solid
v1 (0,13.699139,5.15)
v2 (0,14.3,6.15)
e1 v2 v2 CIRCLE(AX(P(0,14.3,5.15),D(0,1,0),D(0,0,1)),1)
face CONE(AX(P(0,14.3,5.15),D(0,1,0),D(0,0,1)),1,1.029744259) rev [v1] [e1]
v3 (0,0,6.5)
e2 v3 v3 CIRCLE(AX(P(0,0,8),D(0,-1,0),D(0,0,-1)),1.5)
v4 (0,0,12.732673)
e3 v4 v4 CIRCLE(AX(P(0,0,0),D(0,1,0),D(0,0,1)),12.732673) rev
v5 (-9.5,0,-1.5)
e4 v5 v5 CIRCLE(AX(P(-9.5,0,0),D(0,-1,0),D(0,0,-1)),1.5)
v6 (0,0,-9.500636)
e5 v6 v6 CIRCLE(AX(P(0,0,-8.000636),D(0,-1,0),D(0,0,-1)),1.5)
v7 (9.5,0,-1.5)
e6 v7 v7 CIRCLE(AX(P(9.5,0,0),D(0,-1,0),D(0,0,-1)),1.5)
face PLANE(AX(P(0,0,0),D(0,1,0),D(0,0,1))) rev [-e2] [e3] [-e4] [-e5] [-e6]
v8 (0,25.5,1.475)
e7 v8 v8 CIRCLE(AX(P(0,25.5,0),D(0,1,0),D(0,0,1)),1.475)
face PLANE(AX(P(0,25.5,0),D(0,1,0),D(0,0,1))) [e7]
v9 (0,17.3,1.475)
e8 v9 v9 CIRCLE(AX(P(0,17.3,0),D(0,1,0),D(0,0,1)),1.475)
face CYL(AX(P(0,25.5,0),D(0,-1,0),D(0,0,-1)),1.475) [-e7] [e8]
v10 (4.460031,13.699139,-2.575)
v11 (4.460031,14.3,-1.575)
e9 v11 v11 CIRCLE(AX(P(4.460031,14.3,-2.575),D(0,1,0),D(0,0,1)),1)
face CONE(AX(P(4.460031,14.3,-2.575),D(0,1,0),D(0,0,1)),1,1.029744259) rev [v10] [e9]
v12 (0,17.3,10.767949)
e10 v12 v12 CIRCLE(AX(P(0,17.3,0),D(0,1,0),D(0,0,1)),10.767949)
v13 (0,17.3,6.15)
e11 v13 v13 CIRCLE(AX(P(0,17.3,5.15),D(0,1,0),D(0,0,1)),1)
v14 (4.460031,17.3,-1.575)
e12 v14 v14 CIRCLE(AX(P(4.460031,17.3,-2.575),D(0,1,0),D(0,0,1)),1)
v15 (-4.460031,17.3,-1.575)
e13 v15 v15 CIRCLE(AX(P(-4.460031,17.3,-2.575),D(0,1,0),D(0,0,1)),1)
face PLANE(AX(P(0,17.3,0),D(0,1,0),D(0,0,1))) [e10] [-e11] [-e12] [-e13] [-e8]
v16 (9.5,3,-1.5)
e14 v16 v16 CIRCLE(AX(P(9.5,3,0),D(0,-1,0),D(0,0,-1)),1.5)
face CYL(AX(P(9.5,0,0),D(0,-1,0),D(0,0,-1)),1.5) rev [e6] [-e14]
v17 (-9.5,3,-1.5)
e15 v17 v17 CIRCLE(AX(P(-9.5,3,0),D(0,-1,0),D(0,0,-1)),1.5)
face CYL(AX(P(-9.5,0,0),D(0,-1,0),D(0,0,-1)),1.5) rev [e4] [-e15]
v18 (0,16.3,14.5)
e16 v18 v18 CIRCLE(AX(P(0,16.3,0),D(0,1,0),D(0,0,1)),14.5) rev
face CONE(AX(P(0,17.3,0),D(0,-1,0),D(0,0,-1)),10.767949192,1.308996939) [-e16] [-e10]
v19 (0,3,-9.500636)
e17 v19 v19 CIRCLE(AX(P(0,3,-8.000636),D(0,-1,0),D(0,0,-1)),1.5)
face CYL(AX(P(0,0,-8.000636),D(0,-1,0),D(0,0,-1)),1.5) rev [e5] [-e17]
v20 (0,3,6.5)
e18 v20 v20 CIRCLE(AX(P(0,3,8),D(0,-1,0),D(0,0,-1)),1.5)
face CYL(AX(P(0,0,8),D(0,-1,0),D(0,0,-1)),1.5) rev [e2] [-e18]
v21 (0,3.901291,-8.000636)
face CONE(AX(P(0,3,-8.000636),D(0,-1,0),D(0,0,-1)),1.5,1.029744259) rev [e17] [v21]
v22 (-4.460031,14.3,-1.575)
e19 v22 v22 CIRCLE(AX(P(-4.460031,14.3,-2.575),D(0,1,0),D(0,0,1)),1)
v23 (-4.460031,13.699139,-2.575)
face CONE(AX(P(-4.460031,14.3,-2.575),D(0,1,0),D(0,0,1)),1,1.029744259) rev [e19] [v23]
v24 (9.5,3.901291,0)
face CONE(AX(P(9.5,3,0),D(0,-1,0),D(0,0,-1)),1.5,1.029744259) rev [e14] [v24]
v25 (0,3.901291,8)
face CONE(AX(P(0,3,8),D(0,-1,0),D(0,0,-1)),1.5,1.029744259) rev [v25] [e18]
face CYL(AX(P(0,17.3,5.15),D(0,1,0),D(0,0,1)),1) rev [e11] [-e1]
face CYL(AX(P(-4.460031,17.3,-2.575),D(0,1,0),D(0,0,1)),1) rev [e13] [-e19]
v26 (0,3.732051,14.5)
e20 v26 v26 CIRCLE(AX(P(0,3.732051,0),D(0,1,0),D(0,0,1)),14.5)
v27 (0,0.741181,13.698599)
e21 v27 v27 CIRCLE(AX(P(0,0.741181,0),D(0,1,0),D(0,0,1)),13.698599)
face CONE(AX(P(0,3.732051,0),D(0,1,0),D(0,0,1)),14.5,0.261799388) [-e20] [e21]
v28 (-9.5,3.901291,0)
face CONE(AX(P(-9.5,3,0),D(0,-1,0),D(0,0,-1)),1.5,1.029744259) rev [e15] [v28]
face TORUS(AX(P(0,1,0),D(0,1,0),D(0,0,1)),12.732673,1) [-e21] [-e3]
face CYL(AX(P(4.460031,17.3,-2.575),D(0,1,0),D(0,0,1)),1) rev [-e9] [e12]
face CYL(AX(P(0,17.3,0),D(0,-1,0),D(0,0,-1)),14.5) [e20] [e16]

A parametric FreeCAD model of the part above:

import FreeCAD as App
import Part
import Sketcher
from FreeCAD import Vector
Q = App.Units.Quantity


def edges_at(feature, points):
    """Names of the edges that pass closest to the given points."""
    edges = feature.Shape.Edges
    near = lambda p: min(range(len(edges)), key=lambda i: edges[i].distToShape(Part.Vertex(*p))[0])
    return sorted({f"Edge{near(p) + 1}" for p in points})

doc = App.newDocument("Part")
params = doc.addObject("Spreadsheet::Sheet", "Params")
for row, (alias, value) in enumerate([
    ("sketch1_diameter", "29 mm"),
    ("pad1_length", "17.3 mm"),
    ("sketch2_diameter", "2.95 mm"),
    ("pad2_length", "8.2 mm"),
    ("sketch3_diameter", "3 mm"),
    ("hole_diameter", "3 mm"),
    ("hole_depth", "3 mm"),
    ("chamfer_size", "1 mm"),
    ("chamfer_size2", "3.732051 mm"),
    ("fillet_radius", "1 mm"),
    ("chamfer2_size", "1 mm"),
    ("chamfer2_size2", "3.732051 mm"),
    ("sketch4_diameter", "2 mm"),
    ("hole2_diameter", "2 mm"),
    ("hole2_depth", "3 mm"),
], start=1):
    params.set(f"A{row}", alias)
    params.set(f"B{row}", "=" + value)
    params.setAlias(f"B{row}", alias)

body = doc.addObject("PartDesign::Body", "Body")

# Sketch on XZ plane
sketch1 = body.newObject("Sketcher::SketchObject", "Sketch")
sketch1.AttachmentSupport = (doc.getObject("XZ_Plane"), [""])
sketch1.MapMode = "FlatFace"
sketch1.addGeometry(Part.Circle(Vector(0, 0, 0), Vector(0, 0, 1), 14.5), False)
sketch1.addConstraint([
    Sketcher.Constraint("Coincident", 0, 3, -1, 1),
    Sketcher.Constraint("Diameter", 0, Q("29 mm")),
])
sketch1.setExpression("Constraints[1]", "Params.sketch1_diameter")
pad1 = body.newObject("PartDesign::Pad", "Pad")
pad1.Profile = sketch1
pad1.setExpression("Length", "Params.pad1_length")
pad1.Reversed = True

# Sketch on XZ plane
sketch2 = body.newObject("Sketcher::SketchObject", "Sketch001")
sketch2.AttachmentSupport = (doc.getObject("XZ_Plane"), [""])
sketch2.MapMode = "FlatFace"
sketch2.AttachmentOffset = App.Placement(Vector(0, 0, -17.3), App.Rotation())
sketch2.addGeometry(Part.Circle(Vector(0, 0, 0), Vector(0, 0, 1), 1.475), False)
sketch2.addConstraint([
    Sketcher.Constraint("Coincident", 0, 3, -1, 1),
    Sketcher.Constraint("Diameter", 0, Q("2.95 mm")),
])
sketch2.setExpression("Constraints[1]", "Params.sketch2_diameter")
pad2 = body.newObject("PartDesign::Pad", "Pad001")
pad2.Profile = sketch2
pad2.setExpression("Length", "Params.pad2_length")
pad2.Reversed = True

# Sketch on XZ plane
sketch3 = body.newObject("Sketcher::SketchObject", "Sketch002")
sketch3.AttachmentSupport = (doc.getObject("XZ_Plane"), [""])
sketch3.MapMode = "FlatFace"
sketch3.addGeometry([
    Part.Circle(Vector(0, 8, 0), Vector(0, 0, 1), 1.5),
    Part.Circle(Vector(-9.5, 0, 0), Vector(0, 0, 1), 1.5),
    Part.Circle(Vector(0, -8.000636, 0), Vector(0, 0, 1), 1.5),
    Part.Circle(Vector(9.5, 0, 0), Vector(0, 0, 1), 1.5),
], False)
sketch3.addConstraint([
    Sketcher.Constraint("Equal", 0, 1),
    Sketcher.Constraint("Equal", 1, 2),
    Sketcher.Constraint("Equal", 2, 3),
    Sketcher.Constraint("Symmetric", 1, 3, 3, 3, -1, 1),
    Sketcher.Constraint("PointOnObject", 0, 3, -2),
    Sketcher.Constraint("PointOnObject", 1, 3, -1),
    Sketcher.Constraint("PointOnObject", 2, 3, -2),
    Sketcher.Constraint("Diameter", 0, Q("3 mm")),
    Sketcher.Constraint("DistanceY", -1, 1, 0, 3, Q("8 mm")),
    Sketcher.Constraint("DistanceX", 1, 3, 3, 3, Q("19 mm")),
    Sketcher.Constraint("DistanceY", 2, 3, -1, 1, Q("8.000636 mm")),
])
sketch3.setExpression("Constraints[7]", "Params.sketch3_diameter")
doc.recompute()
hole = body.newObject("PartDesign::Hole", "Hole")
hole.Profile = sketch3
hole.ThreadType = "None"
hole.setExpression("Diameter", "Params.hole_diameter")
hole.DepthType = "Dimension"
hole.setExpression("Depth", "Params.hole_depth")
hole.DrillPoint = "Angled"
hole.DrillPointAngle = 118
doc.recompute()

chamfer = body.newObject("PartDesign::Chamfer", "Chamfer")
chamfer.Base = (hole, edges_at(hole, [(-14.5, 0, 0)]))
chamfer.ChamferType = "Two distances"
chamfer.setExpression("Size", "Params.chamfer_size")
chamfer.setExpression("Size2", "Params.chamfer_size2")
chamfer.FlipDirection = True
doc.recompute()

fillet = body.newObject("PartDesign::Fillet", "Fillet")
fillet.Base = (chamfer, edges_at(chamfer, [(-13.5, 0, 0)]))
fillet.setExpression("Radius", "Params.fillet_radius")
doc.recompute()

chamfer2 = body.newObject("PartDesign::Chamfer", "Chamfer001")
chamfer2.Base = (fillet, edges_at(fillet, [(-14.5, 17.3, 0)]))
chamfer2.ChamferType = "Two distances"
chamfer2.setExpression("Size", "Params.chamfer2_size")
chamfer2.setExpression("Size2", "Params.chamfer2_size2")

# Sketch on XZ plane
sketch4 = body.newObject("Sketcher::SketchObject", "Sketch003")
sketch4.AttachmentSupport = (doc.getObject("XZ_Plane"), [""])
sketch4.MapMode = "FlatFace"
sketch4.AttachmentOffset = App.Placement(Vector(0, 0, -17.3), App.Rotation())
sketch4.addGeometry([
    Part.Circle(Vector(-4.460031, -2.575, 0), Vector(0, 0, 1), 1),
    Part.Circle(Vector(4.460031, -2.575, 0), Vector(0, 0, 1), 1),
    Part.Circle(Vector(0, 5.15, 0), Vector(0, 0, 1), 1),
], False)
sketch4.addConstraint([
    Sketcher.Constraint("Equal", 0, 1),
    Sketcher.Constraint("Equal", 1, 2),
    Sketcher.Constraint("Symmetric", 0, 3, 1, 3, -2),
    Sketcher.Constraint("PointOnObject", 2, 3, -2),
    Sketcher.Constraint("Diameter", 0, Q("2 mm")),
    Sketcher.Constraint("DistanceY", -1, 1, 2, 3, Q("5.15 mm")),
    Sketcher.Constraint("DistanceY", 0, 3, -1, 1, Q("2.575 mm")),
    Sketcher.Constraint("DistanceX", 0, 3, -1, 1, Q("4.460031 mm")),
])
sketch4.setExpression("Constraints[4]", "Params.sketch4_diameter")
doc.recompute()
hole2 = body.newObject("PartDesign::Hole", "Hole001")
hole2.Profile = sketch4
hole2.ThreadType = "None"
hole2.setExpression("Diameter", "Params.hole2_diameter")
hole2.DepthType = "Dimension"
hole2.setExpression("Depth", "Params.hole2_depth")
hole2.DrillPoint = "Angled"
hole2.DrillPointAngle = 118
hole2.Reversed = True

doc.recompute()
